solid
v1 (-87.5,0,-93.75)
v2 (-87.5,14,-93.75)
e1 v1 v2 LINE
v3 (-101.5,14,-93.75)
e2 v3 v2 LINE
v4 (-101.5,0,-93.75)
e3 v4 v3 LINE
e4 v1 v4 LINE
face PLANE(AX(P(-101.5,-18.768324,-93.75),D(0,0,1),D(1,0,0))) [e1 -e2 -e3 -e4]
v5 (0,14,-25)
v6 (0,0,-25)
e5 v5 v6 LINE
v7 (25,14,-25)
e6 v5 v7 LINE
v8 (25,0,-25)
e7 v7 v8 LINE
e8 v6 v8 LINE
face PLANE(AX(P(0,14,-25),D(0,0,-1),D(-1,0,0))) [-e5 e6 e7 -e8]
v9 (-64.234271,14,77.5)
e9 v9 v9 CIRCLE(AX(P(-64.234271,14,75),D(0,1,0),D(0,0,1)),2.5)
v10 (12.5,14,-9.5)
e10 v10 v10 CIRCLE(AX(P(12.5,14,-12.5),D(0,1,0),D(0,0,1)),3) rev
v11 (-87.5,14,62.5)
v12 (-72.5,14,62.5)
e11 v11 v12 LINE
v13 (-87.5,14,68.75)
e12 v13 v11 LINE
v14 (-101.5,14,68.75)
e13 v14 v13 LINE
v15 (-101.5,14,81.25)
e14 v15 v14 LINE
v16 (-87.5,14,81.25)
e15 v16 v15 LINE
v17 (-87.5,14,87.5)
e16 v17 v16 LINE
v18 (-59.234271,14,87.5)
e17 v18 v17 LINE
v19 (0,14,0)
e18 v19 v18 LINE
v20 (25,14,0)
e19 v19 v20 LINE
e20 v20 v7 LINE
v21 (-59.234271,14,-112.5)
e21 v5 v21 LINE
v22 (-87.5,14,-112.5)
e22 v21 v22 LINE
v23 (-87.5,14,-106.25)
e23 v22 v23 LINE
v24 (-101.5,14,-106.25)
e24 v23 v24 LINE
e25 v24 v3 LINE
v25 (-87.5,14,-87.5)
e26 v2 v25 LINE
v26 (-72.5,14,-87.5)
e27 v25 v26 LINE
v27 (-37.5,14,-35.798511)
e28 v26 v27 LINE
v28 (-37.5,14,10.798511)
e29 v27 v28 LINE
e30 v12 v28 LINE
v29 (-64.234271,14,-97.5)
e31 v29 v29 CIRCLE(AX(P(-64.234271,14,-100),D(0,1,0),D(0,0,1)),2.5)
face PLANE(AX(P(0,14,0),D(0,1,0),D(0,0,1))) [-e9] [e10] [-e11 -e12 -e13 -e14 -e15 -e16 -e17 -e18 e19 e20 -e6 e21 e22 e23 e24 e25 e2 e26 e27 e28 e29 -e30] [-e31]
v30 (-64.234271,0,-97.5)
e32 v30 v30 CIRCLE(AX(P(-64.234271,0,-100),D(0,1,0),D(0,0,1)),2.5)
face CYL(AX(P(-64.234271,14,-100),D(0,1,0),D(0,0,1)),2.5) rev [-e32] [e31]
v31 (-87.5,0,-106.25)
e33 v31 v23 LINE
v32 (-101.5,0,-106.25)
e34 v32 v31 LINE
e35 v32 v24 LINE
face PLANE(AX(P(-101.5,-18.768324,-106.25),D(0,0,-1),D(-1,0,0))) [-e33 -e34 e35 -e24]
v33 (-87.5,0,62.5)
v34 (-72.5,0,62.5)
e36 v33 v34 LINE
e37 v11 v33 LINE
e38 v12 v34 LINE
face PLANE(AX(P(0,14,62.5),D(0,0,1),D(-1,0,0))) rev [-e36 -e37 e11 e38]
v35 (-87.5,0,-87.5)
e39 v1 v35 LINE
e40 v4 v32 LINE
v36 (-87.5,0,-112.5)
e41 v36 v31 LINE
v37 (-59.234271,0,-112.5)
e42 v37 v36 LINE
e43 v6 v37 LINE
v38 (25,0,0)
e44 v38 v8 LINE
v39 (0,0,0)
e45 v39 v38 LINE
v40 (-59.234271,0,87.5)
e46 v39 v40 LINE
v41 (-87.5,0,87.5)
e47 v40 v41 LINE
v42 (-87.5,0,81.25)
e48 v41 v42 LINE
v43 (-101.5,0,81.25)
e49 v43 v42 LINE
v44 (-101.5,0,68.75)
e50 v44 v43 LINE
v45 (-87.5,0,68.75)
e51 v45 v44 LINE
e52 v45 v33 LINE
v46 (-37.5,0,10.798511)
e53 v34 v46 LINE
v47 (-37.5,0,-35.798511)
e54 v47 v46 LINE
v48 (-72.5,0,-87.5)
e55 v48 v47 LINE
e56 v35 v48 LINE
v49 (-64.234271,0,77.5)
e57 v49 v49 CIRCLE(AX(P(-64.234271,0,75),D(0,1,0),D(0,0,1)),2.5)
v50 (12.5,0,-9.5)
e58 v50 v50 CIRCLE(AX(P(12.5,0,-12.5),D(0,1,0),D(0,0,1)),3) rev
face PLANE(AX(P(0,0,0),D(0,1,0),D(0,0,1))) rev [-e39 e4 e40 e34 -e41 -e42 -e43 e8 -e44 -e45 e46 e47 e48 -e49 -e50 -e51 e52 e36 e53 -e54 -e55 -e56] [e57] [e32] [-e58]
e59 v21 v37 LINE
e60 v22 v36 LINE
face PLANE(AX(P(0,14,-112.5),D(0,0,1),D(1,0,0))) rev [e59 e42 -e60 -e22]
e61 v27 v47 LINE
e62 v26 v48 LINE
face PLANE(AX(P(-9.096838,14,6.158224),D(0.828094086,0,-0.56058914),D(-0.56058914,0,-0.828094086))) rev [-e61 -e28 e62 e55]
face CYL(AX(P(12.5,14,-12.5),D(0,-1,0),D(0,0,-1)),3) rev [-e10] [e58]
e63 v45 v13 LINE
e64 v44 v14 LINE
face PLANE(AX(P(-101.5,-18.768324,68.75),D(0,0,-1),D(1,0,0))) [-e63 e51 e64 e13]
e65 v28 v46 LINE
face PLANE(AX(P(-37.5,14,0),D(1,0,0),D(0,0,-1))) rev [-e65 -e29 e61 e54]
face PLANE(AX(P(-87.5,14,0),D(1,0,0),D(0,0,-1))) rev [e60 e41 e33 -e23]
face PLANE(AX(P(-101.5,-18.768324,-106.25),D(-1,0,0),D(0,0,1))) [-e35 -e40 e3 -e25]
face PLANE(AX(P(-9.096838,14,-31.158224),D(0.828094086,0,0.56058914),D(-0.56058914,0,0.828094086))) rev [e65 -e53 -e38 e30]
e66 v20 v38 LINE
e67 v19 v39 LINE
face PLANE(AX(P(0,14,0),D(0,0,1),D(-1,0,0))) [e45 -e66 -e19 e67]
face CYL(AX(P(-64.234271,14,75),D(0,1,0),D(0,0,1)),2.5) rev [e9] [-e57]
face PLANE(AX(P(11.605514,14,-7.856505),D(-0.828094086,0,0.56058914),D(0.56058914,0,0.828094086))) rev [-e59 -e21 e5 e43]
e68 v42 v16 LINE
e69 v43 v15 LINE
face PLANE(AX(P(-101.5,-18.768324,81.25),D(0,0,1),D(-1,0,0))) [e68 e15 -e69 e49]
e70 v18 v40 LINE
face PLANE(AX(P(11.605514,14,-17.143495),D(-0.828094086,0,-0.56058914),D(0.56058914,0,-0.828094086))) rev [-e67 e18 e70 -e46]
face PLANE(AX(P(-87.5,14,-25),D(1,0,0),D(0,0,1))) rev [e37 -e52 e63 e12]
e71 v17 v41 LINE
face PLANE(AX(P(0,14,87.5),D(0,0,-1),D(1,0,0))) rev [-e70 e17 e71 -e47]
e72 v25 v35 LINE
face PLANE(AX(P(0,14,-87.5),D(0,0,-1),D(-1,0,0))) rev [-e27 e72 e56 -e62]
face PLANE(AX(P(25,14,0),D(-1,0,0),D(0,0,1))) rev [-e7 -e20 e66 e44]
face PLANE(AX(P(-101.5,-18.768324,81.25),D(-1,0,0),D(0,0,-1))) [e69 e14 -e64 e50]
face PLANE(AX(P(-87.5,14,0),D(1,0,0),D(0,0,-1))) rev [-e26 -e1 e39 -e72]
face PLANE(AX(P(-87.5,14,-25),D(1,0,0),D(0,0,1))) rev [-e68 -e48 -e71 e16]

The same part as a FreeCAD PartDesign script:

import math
import FreeCAD as App
import Part
import Sketcher

V = App.Vector


def add_polygon(sketch, points):
    """Adds a closed chain of lines whose ends are joined by coincident constraints."""
    first, n = sketch.GeometryCount, len(points)
    for a, b in zip(points, points[1:] + points[:1]):
        sketch.addGeometry(Part.LineSegment(App.Vector(*a, 0), App.Vector(*b, 0)), False)
    for i in range(n):
        sketch.addConstraint(Sketcher.Constraint("Coincident", first + i, 2, first + (i + 1) % n, 1))

doc = App.newDocument("Part")
body = doc.addObject("PartDesign::Body", "Body")

sketch1 = doc.addObject("Sketcher::SketchObject", "Sketch")
body.addObject(sketch1)
sketch1.AttachmentSupport = (doc.XZ_Plane, [""])
sketch1.MapMode = "FlatFace"
sketch1.addGeometry([
    Part.LineSegment(V(-37.5, -12.5, 0), V(9.5, -12.5, 0)),
    Part.ArcOfCircle(Part.Circle(V(12.5, -12.5, 0), V(0, 0, 1), 3), math.radians(180), math.radians(360)),
    Part.LineSegment(V(15.5, -12.5, 0), V(25, -12.5, 0)),
    Part.LineSegment(V(25, -12.5, 0), V(25, -25, 0)),
    Part.LineSegment(V(25, -25, 0), V(0, -25, 0)),
    Part.LineSegment(V(0, -25, 0), V(-59.2, -112.5, 0)),
    Part.LineSegment(V(-59.2, -112.5, 0), V(-87.5, -112.5, 0)),
    Part.LineSegment(V(-87.5, -112.5, 0), V(-87.5, -87.5, 0)),
    Part.LineSegment(V(-87.5, -87.5, 0), V(-72.5, -87.5, 0)),
    Part.LineSegment(V(-72.5, -87.5, 0), V(-37.5, -35.8, 0)),
    Part.LineSegment(V(-37.5, -35.8, 0), V(-37.5, -12.5, 0)),
], False)
sketch1.addConstraint([
    Sketcher.Constraint("Coincident", 0, 2, 1, 1),
    Sketcher.Constraint("Coincident", 1, 2, 2, 1),
    Sketcher.Constraint("Coincident", 2, 2, 3, 1),
    Sketcher.Constraint("Coincident", 3, 2, 4, 1),
    Sketcher.Constraint("Coincident", 4, 2, 5, 1),
    Sketcher.Constraint("Coincident", 5, 2, 6, 1),
    Sketcher.Constraint("Coincident", 6, 2, 7, 1),
    Sketcher.Constraint("Coincident", 7, 2, 8, 1),
    Sketcher.Constraint("Coincident", 8, 2, 9, 1),
    Sketcher.Constraint("Coincident", 9, 2, 10, 1),
    Sketcher.Constraint("Coincident", 10, 2, 0, 1),
    Sketcher.Constraint("Horizontal", 0),
    Sketcher.Constraint("Horizontal", 2),
    Sketcher.Constraint("Vertical", 3),
    Sketcher.Constraint("Horizontal", 4),
    Sketcher.Constraint("Horizontal", 6),
    Sketcher.Constraint("Vertical", 7),
    Sketcher.Constraint("Horizontal", 8),
    Sketcher.Constraint("Vertical", 10),
    Sketcher.Constraint("PointOnObject", 4, 2, -2),
    Sketcher.Constraint("Parallel", 5, 9),
    Sketcher.Constraint("Horizontal", 1, 3, 0, 2),
    Sketcher.Constraint("Horizontal", 0, 2, 1, 2),
    Sketcher.Constraint("Equal", 4, 7),
    Sketcher.Constraint("Radius", 1, 3.0),
    Sketcher.Constraint("DistanceX", 0, 1, 0, 2, 47.0),
    Sketcher.Constraint("DistanceX", 4, 2, 4, 1, 25.0),
    Sketcher.Constraint("DistanceX", 8, 1, 8, 2, 15.0),
    Sketcher.Constraint("DistanceX", 2, 1, 2, 2, 9.5),
    Sketcher.Constraint("DistanceY", 3, 2, 3, 1, 12.5),
    Sketcher.Constraint("DistanceY", 3, 2, -1, 1, 25.0),
    Sketcher.Constraint("DistanceY", 5, 2, 0, 2, 100.0),
    Sketcher.Constraint("DistanceX", 6, 2, 0, 2, 97.0),
    Sketcher.Constraint("DistanceX", 6, 2, 6, 1, 28.265729),
])
pad1 = doc.addObject("PartDesign::Pad", "Pad")
body.addObject(pad1)
pad1.Profile = sketch1
pad1.Length = 14
pad1.Reversed = True

sketch2 = doc.addObject("Sketcher::SketchObject", "Sketch001")
body.addObject(sketch2)
sketch2.AttachmentSupport = (doc.XZ_Plane, [""])
sketch2.MapMode = "FlatFace"
sketch2.AttachmentOffset = App.Placement(V(0, 0, -14), App.Rotation())
add_polygon(sketch2, [(-102, -106), (-102, -94), (-88, -94), (-88, -106)])
sketch2.addConstraint([
    Sketcher.Constraint("Vertical", 0),
    Sketcher.Constraint("Horizontal", 1),
    Sketcher.Constraint("Vertical", 2),
    Sketcher.Constraint("Horizontal", 3),
    Sketcher.Constraint("DistanceX", 1, 1, 1, 2, 14.0),
    Sketcher.Constraint("DistanceY", 0, 1, 0, 2, 12.5),
    Sketcher.Constraint("DistanceX", 0, 2, -1, 1, 101.5),
    Sketcher.Constraint("DistanceY", 0, 2, -1, 1, 93.75),
])
pad2 = doc.addObject("PartDesign::Pad", "Pad001")
body.addObject(pad2)
pad2.Profile = sketch2
pad2.Length = 14
body2 = doc.addObject("PartDesign::Body", "Body001")
doc.recompute()

body2.BaseFeature = body
doc.recompute()

mirroring = doc.addObject("Part::Mirroring", "Mirroring")
mirroring.Source = body
mirroring.Base = V(0, 14, -12.5)
mirroring.Normal = V(0, 0, -1)
body3 = doc.addObject("PartDesign::Body", "Body002")
body3.BaseFeature = mirroring
boolean = doc.addObject("PartDesign::Boolean", "Boolean")
body2.addObject(boolean)
boolean.Type = "Fuse"
boolean.addObjects([body3])
doc.recompute()

sketch3 = doc.addObject("Sketcher::SketchObject", "Sketch002")
body2.addObject(sketch3)
sketch3.AttachmentSupport = (doc.getObject("XZ_Plane001"), [""])
sketch3.MapMode = "FlatFace"
sketch3.AttachmentOffset = App.Placement(V(0, 0, -14), App.Rotation())
sketch3.addGeometry([
    Part.Circle(V(-64.2, -100, 0), V(0, 0, 1), 2.5),
    Part.Circle(V(-64.2, 75, 0), V(0, 0, 1), 2.5),
], False)
sketch3.addConstraint([
    Sketcher.Constraint("Equal", 0, 1),
    Sketcher.Constraint("Vertical", 0, 3, 1, 3),
    Sketcher.Constraint("Diameter", 0, 5.0),
    Sketcher.Constraint("DistanceY", 0, 3, -1, 1, 100.0),
    Sketcher.Constraint("DistanceY", -1, 1, 1, 3, 75.0),
    Sketcher.Constraint("DistanceX", 0, 3, -1, 1, 64.234271),
])
doc.recompute()
hole = doc.addObject("PartDesign::Hole", "Hole")
body2.addObject(hole)
hole.Profile = sketch3
hole.ThreadType = "None"
hole.Diameter = 5
hole.DepthType = "ThroughAll"
hole.Reversed = True
mirroring.Visibility = False

doc.recompute()
